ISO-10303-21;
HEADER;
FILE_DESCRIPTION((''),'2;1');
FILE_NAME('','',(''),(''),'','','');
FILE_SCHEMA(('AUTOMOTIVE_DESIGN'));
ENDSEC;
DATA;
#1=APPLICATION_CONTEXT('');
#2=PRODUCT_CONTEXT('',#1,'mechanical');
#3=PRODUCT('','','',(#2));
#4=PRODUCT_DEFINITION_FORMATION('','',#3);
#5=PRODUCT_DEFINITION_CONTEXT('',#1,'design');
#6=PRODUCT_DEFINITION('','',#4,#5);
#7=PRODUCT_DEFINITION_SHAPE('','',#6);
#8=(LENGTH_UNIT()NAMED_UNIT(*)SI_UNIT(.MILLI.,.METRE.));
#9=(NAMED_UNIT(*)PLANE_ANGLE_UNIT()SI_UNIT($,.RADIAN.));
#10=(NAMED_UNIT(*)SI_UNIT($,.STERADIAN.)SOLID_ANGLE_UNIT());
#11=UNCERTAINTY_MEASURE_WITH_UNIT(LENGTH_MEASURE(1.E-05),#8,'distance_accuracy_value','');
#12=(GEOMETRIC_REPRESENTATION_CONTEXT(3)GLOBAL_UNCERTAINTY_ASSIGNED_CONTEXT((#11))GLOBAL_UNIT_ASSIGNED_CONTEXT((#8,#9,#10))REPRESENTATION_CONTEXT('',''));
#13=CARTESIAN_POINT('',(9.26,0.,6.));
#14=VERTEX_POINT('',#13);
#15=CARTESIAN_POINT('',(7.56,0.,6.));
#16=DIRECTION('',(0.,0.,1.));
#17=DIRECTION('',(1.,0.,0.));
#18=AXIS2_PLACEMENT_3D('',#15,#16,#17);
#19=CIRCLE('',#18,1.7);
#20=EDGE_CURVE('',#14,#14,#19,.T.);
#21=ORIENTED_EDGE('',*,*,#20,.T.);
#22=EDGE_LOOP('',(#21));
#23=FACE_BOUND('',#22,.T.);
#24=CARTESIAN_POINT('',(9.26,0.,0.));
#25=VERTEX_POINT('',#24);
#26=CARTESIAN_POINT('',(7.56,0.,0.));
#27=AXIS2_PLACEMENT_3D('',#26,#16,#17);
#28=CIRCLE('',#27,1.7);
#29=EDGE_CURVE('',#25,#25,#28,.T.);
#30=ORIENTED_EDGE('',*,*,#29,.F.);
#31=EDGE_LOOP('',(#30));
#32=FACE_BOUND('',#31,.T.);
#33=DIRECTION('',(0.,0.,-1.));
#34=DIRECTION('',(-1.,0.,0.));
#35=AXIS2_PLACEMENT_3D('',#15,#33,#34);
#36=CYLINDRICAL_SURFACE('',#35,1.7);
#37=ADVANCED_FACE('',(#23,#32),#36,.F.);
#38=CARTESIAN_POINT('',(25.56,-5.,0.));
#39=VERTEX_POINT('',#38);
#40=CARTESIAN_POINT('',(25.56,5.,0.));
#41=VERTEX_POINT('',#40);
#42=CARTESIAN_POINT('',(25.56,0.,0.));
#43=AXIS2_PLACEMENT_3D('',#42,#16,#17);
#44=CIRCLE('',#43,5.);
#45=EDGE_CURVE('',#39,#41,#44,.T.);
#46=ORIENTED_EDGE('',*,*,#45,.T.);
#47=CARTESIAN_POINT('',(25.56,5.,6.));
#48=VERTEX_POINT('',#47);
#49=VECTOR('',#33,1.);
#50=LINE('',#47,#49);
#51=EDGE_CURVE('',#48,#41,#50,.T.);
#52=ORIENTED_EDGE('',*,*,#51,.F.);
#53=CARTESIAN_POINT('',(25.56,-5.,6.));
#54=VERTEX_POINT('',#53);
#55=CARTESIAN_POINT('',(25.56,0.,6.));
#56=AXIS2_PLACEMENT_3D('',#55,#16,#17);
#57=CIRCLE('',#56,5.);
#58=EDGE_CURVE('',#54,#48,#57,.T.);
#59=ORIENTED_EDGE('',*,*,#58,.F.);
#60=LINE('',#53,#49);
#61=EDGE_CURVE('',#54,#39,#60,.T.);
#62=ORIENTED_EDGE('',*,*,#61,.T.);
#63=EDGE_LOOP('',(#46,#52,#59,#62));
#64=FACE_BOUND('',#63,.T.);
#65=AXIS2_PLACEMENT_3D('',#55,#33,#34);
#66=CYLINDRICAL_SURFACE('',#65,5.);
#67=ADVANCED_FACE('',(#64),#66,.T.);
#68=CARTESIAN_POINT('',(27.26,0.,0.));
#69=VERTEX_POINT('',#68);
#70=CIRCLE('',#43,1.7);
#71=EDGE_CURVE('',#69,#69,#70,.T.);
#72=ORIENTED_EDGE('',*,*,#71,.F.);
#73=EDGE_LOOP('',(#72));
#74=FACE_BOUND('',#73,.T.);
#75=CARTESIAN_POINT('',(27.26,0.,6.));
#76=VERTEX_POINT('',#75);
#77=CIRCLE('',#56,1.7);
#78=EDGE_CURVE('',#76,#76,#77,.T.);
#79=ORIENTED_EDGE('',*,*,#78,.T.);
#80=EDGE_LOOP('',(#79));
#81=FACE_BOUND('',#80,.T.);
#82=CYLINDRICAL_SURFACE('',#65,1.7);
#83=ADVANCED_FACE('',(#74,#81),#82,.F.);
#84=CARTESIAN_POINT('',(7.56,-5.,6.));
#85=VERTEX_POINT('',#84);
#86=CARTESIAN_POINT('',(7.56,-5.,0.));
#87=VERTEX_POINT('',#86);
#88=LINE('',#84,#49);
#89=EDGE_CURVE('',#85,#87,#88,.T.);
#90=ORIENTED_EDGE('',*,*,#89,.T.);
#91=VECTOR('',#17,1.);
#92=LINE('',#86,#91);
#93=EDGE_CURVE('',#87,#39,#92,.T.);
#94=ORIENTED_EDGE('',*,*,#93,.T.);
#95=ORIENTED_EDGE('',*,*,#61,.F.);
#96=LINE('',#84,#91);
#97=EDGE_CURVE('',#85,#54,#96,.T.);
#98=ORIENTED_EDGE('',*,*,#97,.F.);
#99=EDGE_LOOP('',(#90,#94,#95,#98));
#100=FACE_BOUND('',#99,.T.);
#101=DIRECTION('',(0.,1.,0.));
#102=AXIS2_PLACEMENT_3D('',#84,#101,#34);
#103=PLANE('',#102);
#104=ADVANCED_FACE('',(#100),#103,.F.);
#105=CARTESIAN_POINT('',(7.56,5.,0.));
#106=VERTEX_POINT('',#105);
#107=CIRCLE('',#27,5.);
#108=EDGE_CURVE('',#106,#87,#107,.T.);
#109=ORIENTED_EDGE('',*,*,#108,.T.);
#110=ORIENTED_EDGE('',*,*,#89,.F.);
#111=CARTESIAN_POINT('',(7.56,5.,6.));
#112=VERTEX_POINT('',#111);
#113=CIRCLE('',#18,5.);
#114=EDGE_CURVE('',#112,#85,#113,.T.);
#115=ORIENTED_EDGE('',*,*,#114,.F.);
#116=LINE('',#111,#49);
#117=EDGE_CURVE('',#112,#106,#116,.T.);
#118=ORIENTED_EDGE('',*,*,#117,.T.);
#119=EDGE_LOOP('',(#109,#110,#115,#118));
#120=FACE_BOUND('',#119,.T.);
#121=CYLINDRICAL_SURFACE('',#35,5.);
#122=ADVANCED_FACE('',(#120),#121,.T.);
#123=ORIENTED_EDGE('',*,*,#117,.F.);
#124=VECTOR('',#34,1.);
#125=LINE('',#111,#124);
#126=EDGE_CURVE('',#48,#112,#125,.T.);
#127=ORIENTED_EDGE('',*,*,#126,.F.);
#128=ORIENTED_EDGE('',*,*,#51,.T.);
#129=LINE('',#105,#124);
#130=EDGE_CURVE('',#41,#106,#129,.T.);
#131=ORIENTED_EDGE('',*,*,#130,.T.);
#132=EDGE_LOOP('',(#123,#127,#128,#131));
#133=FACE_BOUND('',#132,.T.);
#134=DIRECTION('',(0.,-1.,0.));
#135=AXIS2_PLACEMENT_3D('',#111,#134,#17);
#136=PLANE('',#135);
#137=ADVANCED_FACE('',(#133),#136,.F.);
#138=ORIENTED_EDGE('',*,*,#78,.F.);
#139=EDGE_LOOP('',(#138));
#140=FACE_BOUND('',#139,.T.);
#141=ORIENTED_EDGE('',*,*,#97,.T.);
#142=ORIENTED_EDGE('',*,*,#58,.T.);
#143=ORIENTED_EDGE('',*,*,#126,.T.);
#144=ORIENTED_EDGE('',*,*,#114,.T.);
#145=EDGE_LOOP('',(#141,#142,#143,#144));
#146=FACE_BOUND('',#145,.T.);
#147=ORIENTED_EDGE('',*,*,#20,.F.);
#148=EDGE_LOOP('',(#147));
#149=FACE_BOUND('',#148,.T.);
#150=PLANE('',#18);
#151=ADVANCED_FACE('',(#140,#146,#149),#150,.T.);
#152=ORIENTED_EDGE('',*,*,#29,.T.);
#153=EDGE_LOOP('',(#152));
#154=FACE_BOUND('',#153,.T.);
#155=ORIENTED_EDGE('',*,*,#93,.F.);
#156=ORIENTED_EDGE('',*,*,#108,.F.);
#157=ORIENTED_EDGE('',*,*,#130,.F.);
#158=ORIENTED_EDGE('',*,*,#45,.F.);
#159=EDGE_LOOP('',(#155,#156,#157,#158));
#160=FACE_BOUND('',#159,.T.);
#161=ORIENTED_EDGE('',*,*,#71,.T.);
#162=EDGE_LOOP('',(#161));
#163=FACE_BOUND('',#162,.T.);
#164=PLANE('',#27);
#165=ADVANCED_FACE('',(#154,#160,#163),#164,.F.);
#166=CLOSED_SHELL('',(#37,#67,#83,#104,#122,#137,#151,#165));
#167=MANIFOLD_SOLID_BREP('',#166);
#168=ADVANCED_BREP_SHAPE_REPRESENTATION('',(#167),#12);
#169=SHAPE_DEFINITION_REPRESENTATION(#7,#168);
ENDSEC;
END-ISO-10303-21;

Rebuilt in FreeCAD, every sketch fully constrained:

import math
import FreeCAD as App
import Part
import Sketcher

V = App.Vector

doc = App.newDocument("Part")
body = doc.addObject("PartDesign::Body", "Body")

# Sketch on XY plane
sketch1 = doc.addObject("Sketcher::SketchObject", "Sketch")
body.addObject(sketch1)
sketch1.AttachmentSupport = (doc.XY_Plane, [""])
sketch1.MapMode = "FlatFace"
sketch1.addGeometry(Part.LineSegment(V(25.6, 5, 0), V(7.6, 5, 0)), False)
sketch1.addGeometry(Part.ArcOfCircle(Part.Circle(V(7.6, 0, 0), V(0, 0, 1), 5), math.radians(90), math.radians(270)), False)
sketch1.addGeometry(Part.LineSegment(V(7.6, -5, 0), V(25.6, -5, 0)), False)
sketch1.addGeometry(Part.ArcOfCircle(Part.Circle(V(25.6, 0, 0), V(0, 0, 1), 5), math.radians(-90), math.radians(90)), False)
sketch1.addGeometry(Part.Circle(V(25.6, 0, 0), V(0, 0, 1), 1.7), False)
sketch1.addGeometry(Part.Circle(V(7.6, 0, 0), V(0, 0, 1), 1.7), False)
sketch1.addConstraint(Sketcher.Constraint("Tangent", 0, 2, 1, 1))
sketch1.addConstraint(Sketcher.Constraint("Tangent", 1, 2, 2, 1))
sketch1.addConstraint(Sketcher.Constraint("Tangent", 2, 2, 3, 1))
sketch1.addConstraint(Sketcher.Constraint("Tangent", 3, 2, 0, 1))
sketch1.addConstraint(Sketcher.Constraint("Horizontal", 0))
sketch1.addConstraint(Sketcher.Constraint("Horizontal", 2))
sketch1.addConstraint(Sketcher.Constraint("Coincident", 4, 3, 3, 3))
sketch1.addConstraint(Sketcher.Constraint("Coincident", 5, 3, 1, 3))
sketch1.addConstraint(Sketcher.Constraint("Equal", 4, 5))
sketch1.addConstraint(Sketcher.Constraint("PointOnObject", 1, 3, -1))
sketch1.addConstraint(Sketcher.Constraint("Radius", 1, 5.0))
sketch1.addConstraint(Sketcher.Constraint("Diameter", 4, 3.4))
sketch1.addConstraint(Sketcher.Constraint("DistanceX", 0, 2, 0, 1, 18.0))
sketch1.addConstraint(Sketcher.Constraint("DistanceX", -1, 1, 1, 3, 7.56))
pad1 = doc.addObject("PartDesign::Pad", "Pad")
body.addObject(pad1)
pad1.Profile = sketch1
pad1.Length = 6

doc.recompute()
